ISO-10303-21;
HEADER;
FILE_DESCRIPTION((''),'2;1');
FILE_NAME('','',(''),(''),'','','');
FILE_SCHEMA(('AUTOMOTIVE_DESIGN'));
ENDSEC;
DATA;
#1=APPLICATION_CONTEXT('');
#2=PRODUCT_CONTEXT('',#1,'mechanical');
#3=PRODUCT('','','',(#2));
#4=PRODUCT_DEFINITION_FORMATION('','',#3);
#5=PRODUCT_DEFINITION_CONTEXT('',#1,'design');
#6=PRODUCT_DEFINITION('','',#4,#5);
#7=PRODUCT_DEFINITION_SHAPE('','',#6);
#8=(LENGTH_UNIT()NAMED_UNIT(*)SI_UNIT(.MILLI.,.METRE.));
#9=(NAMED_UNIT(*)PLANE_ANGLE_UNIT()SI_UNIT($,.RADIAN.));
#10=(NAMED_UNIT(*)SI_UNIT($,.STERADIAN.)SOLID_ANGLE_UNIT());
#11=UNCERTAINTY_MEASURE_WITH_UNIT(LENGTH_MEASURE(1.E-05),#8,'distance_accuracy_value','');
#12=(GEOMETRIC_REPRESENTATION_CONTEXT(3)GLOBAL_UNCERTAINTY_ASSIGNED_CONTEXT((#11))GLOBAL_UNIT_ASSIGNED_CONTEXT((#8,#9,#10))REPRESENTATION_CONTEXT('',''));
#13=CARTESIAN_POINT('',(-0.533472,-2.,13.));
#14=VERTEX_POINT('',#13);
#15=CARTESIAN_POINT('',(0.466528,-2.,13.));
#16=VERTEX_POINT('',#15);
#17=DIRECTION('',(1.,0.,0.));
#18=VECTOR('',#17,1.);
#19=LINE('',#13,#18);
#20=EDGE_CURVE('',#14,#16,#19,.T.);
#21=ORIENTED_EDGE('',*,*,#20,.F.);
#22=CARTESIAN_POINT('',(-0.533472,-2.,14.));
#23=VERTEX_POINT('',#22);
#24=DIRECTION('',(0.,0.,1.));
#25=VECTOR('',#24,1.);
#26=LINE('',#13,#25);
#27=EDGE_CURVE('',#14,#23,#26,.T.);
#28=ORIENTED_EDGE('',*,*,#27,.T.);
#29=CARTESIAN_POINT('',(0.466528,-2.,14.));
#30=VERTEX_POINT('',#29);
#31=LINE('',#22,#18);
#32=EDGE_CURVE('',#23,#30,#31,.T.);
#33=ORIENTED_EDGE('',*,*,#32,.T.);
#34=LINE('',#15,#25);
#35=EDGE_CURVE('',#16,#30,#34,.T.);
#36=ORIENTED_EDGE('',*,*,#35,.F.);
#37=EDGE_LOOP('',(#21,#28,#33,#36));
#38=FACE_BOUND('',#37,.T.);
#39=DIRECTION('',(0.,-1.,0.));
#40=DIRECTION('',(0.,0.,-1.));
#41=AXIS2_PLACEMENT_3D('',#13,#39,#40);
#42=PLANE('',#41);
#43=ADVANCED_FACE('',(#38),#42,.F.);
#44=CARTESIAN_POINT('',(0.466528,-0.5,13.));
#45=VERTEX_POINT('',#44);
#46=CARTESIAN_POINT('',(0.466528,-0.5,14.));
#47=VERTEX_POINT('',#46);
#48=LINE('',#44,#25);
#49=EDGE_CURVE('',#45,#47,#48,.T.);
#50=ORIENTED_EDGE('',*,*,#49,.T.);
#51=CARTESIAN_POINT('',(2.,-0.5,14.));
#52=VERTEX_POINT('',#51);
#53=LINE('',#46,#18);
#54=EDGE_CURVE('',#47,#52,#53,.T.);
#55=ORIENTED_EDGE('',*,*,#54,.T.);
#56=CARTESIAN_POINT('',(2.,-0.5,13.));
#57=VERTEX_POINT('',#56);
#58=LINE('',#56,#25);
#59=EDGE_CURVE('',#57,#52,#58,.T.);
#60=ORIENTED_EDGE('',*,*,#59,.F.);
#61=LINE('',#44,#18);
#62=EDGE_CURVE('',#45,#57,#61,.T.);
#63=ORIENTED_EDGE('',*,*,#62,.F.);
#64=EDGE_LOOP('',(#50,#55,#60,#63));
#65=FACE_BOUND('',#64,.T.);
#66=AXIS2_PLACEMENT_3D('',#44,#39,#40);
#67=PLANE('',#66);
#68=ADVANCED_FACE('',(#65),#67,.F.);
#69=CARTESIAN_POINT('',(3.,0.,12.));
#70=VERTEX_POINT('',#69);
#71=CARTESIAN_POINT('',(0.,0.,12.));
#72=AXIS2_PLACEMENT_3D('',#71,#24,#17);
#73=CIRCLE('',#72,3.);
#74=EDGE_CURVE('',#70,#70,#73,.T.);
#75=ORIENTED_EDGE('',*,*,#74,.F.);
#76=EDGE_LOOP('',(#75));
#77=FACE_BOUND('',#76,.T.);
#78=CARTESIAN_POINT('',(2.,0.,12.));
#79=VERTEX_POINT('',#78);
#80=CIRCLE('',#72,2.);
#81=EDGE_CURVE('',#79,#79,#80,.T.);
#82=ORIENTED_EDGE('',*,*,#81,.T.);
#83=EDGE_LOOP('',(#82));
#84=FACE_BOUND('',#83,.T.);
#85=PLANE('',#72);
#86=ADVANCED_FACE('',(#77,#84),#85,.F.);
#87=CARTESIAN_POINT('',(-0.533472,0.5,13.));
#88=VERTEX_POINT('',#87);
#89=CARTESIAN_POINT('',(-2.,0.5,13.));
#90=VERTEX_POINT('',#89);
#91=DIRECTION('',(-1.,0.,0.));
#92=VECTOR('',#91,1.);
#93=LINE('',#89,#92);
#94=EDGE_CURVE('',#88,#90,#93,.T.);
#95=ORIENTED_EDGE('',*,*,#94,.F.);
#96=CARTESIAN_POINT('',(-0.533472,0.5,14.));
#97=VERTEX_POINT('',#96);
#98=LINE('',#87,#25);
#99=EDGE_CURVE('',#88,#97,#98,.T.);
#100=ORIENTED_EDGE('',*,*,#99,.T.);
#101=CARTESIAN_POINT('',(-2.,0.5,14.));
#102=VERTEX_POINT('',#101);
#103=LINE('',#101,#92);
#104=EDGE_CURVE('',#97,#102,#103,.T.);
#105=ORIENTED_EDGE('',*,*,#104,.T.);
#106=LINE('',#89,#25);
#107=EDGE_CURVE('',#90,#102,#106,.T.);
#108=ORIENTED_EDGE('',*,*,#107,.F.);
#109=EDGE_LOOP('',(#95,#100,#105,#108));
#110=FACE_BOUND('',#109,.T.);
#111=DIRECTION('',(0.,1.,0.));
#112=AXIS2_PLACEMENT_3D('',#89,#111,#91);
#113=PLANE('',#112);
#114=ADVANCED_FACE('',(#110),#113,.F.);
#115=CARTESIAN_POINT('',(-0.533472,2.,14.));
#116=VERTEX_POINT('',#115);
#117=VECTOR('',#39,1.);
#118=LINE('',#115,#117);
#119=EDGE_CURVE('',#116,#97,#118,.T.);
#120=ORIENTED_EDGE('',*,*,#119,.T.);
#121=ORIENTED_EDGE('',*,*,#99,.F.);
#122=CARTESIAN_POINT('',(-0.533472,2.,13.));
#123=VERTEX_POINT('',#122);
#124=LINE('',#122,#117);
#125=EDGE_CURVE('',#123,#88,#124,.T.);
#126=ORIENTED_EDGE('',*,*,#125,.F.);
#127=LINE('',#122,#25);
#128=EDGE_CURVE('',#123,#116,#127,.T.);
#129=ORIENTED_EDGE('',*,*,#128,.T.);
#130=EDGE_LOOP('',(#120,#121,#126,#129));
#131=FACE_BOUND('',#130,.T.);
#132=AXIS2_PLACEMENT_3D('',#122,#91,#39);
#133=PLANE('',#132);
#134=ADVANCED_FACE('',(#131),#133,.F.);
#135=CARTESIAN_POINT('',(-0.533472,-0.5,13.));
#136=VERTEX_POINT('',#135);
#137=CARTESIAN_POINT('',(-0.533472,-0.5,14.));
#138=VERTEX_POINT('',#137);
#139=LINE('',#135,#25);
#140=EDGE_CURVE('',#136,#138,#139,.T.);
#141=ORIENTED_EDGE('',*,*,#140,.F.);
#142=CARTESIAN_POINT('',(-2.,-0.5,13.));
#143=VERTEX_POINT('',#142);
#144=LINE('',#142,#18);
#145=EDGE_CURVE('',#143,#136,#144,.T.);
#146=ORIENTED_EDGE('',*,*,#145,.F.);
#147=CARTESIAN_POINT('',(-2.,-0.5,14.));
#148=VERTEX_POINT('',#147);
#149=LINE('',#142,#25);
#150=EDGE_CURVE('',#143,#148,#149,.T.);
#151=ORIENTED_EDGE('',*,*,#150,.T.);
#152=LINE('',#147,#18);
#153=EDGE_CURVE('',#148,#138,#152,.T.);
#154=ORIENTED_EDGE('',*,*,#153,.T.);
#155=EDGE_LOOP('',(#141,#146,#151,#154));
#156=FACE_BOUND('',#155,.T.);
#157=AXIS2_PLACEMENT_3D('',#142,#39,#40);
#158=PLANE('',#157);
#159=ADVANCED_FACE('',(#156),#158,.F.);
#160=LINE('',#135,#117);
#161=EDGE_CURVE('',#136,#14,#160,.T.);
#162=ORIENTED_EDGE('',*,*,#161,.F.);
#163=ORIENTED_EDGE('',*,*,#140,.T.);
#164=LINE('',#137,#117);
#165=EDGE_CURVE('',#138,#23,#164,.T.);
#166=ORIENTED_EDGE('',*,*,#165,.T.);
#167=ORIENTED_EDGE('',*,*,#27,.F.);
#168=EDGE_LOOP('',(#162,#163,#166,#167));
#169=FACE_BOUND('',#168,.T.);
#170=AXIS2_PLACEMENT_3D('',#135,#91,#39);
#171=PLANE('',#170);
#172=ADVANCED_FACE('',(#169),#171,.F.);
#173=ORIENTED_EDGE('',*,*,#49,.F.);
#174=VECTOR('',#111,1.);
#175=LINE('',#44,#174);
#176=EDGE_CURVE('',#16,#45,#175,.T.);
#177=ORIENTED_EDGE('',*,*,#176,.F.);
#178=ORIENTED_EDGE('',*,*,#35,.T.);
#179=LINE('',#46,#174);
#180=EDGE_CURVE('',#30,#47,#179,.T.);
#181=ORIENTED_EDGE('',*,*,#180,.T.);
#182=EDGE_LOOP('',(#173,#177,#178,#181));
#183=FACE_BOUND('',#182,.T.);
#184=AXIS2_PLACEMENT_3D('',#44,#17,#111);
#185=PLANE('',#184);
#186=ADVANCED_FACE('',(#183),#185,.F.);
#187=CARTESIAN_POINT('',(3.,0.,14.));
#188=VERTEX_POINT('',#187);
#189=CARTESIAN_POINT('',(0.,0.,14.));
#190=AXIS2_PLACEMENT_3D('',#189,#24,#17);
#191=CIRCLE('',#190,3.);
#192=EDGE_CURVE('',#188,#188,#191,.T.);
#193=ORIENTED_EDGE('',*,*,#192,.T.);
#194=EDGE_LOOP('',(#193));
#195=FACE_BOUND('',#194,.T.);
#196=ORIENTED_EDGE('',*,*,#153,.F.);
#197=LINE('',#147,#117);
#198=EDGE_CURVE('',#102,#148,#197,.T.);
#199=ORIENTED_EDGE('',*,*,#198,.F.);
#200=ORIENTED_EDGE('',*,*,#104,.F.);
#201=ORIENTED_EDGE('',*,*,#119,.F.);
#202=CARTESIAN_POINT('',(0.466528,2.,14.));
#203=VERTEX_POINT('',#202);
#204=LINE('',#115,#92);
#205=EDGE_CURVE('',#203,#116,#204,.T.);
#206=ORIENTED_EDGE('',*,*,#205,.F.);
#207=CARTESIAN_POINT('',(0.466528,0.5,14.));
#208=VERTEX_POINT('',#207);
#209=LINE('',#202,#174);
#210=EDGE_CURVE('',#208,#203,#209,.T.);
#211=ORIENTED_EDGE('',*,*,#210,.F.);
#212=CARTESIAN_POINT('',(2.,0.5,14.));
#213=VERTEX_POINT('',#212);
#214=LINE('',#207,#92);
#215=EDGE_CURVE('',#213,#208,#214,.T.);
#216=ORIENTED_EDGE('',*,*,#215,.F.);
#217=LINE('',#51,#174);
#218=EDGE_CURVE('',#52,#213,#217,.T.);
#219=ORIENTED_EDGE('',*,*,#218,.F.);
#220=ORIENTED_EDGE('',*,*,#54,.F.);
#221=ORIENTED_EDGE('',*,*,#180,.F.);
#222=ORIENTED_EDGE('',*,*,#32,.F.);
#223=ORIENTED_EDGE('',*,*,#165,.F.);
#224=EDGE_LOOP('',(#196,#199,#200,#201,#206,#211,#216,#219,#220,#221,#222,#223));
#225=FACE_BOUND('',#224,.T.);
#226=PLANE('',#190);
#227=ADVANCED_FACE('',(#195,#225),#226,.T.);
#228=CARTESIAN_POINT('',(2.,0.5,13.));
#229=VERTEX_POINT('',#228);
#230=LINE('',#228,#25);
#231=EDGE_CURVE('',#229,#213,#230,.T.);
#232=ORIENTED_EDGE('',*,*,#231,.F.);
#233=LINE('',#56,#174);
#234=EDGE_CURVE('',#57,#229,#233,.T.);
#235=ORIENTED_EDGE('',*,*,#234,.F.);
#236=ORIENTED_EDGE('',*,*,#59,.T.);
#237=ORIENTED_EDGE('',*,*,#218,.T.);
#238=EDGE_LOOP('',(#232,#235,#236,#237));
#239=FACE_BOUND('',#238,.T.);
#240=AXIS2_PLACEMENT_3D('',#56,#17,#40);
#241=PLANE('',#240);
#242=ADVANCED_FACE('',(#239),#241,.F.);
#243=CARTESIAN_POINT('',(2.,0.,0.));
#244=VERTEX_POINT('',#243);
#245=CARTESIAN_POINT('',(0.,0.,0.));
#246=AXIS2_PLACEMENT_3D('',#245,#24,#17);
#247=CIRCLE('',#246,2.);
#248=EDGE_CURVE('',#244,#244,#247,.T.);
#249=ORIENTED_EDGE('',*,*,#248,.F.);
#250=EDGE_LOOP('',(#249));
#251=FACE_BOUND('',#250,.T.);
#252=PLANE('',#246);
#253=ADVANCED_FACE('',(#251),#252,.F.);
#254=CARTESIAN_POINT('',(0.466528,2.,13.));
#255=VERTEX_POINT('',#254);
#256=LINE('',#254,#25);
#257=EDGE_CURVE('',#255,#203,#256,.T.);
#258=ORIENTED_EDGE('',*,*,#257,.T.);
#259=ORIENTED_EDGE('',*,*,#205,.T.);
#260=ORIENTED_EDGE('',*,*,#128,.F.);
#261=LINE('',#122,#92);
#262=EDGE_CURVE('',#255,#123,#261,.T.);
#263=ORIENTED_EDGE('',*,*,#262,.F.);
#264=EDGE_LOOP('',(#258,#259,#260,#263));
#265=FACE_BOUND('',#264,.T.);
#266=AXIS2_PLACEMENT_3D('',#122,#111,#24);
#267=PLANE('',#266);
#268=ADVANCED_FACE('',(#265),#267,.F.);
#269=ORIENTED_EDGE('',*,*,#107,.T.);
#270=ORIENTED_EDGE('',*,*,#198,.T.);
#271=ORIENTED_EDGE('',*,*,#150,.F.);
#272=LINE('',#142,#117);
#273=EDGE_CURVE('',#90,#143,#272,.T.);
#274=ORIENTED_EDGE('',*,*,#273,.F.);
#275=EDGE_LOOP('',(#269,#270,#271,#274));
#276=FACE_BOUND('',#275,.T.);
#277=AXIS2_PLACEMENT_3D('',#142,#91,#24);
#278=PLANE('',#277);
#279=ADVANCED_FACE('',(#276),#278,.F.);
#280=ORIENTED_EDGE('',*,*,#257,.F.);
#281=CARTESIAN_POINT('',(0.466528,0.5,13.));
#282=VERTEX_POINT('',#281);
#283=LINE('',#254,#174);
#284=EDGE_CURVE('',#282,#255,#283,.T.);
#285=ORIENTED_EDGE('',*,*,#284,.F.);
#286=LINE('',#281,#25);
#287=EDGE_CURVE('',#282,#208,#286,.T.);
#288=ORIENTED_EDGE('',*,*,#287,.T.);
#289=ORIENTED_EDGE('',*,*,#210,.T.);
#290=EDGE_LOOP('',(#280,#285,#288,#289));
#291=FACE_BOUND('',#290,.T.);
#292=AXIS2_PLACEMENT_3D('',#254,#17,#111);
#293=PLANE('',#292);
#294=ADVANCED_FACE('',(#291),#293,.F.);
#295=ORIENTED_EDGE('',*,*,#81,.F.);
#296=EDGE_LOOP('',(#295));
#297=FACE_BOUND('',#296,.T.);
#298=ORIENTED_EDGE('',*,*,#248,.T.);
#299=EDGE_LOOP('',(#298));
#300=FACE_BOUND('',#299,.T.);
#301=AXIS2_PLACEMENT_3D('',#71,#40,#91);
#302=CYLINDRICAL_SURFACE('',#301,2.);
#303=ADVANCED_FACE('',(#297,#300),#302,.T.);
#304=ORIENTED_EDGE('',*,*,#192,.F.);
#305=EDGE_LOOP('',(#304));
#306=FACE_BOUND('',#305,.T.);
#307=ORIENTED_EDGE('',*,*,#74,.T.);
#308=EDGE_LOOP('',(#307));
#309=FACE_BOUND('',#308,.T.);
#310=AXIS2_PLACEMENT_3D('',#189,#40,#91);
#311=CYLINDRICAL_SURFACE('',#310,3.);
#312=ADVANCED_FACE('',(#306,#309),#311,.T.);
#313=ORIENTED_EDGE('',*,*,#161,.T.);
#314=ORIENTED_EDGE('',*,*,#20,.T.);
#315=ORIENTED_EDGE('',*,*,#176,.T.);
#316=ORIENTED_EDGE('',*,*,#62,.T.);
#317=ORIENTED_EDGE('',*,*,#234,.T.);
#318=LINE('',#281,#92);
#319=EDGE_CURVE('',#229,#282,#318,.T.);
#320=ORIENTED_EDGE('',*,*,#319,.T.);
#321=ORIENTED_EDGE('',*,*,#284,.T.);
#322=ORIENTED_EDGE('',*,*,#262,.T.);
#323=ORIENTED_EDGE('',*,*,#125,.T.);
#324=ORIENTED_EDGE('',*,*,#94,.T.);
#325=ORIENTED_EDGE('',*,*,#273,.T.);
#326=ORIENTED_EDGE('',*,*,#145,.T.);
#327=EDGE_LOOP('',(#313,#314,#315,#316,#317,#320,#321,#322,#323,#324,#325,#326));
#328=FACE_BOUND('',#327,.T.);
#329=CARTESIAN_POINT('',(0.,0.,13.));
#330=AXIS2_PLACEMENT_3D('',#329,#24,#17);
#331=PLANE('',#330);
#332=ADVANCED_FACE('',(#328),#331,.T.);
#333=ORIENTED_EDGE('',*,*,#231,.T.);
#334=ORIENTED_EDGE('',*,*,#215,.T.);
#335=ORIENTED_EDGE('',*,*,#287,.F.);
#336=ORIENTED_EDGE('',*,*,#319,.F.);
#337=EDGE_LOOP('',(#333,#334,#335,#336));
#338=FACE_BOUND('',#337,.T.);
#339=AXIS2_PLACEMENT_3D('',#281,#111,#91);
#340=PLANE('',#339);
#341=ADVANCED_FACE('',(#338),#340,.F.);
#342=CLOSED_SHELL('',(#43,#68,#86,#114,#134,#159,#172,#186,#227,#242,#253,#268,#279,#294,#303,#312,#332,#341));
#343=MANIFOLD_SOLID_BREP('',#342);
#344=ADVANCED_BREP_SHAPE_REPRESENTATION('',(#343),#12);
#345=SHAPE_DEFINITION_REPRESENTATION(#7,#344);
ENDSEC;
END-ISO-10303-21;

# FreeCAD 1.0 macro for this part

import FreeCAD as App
import Part
import Sketcher


def add_polygon(sketch, points):
    """Adds a closed chain of lines whose ends are joined by coincident constraints."""
    first, n = sketch.GeometryCount, len(points)
    for a, b in zip(points, points[1:] + points[:1]):
        sketch.addGeometry(Part.LineSegment(App.Vector(*a, 0), App.Vector(*b, 0)), False)
    for i in range(n):
        sketch.addConstraint(Sketcher.Constraint("Coincident", first + i, 2, first + (i + 1) % n, 1))

doc = App.newDocument("Part")
body = doc.addObject("PartDesign::Body", "Body")

sketch1 = body.newObject("Sketcher::SketchObject", "Sketch")
sketch1.AttachmentSupport = (doc.getObject("XY_Plane"), [""])
sketch1.MapMode = "FlatFace"
sketch1.addGeometry(Part.Circle(App.Vector(0, 0, 0), App.Vector(0, 0, 1), 2), False)
sketch1.addConstraint([
    Sketcher.Constraint("Coincident", 0, 3, -1, 1),
    Sketcher.Constraint("Diameter", 0, 4.0),
])
pad1 = body.newObject("PartDesign::Pad", "Pad")
pad1.Profile = sketch1
pad1.Length = 12

sketch2 = body.newObject("Sketcher::SketchObject", "Sketch001")
sketch2.AttachmentSupport = (doc.getObject("XY_Plane"), [""])
sketch2.MapMode = "FlatFace"
sketch2.AttachmentOffset = App.Placement(App.Vector(0, 0, 12), App.Rotation())
sketch2.addGeometry(Part.Circle(App.Vector(0, 0, 0), App.Vector(0, 0, 1), 3), False)
sketch2.addConstraint([
    Sketcher.Constraint("Coincident", 0, 3, -1, 1),
    Sketcher.Constraint("Diameter", 0, 6.0),
])
pad2 = body.newObject("PartDesign::Pad", "Pad001")
pad2.Profile = sketch2
pad2.Length = 2

sketch3 = body.newObject("Sketcher::SketchObject", "Sketch002")
sketch3.AttachmentSupport = (doc.getObject("XY_Plane"), [""])
sketch3.MapMode = "FlatFace"
sketch3.AttachmentOffset = App.Placement(App.Vector(0, 0, 14), App.Rotation())
add_polygon(sketch3, [(2, 0.5), (0.466528, 0.5), (0.466528, 2), (-0.533472, 2), (-0.533472, 0.5), (-2, 0.5), (-2, -0.5), (-0.533472, -0.5), (-0.533472, -2), (0.466528, -2), (0.466528, -0.5), (2, -0.5)])
sketch3.addConstraint([
    Sketcher.Constraint("Horizontal", 0),
    Sketcher.Constraint("Vertical", 1),
    Sketcher.Constraint("Horizontal", 2),
    Sketcher.Constraint("Vertical", 3),
    Sketcher.Constraint("Horizontal", 4),
    Sketcher.Constraint("Vertical", 5),
    Sketcher.Constraint("Horizontal", 6),
    Sketcher.Constraint("Vertical", 7),
    Sketcher.Constraint("Horizontal", 8),
    Sketcher.Constraint("Vertical", 9),
    Sketcher.Constraint("Horizontal", 10),
    Sketcher.Constraint("Vertical", 11),
    Sketcher.Constraint("Symmetric", 4, 2, 10, 2, -1, 1),
    Sketcher.Constraint("Symmetric", 3, 2, 6, 2, -1),
    Sketcher.Constraint("Symmetric", 1, 2, 8, 2, -1),
    Sketcher.Constraint("Horizontal", 0, 2, 3, 2),
    Sketcher.Constraint("Equal", 8, 5),
    Sketcher.Constraint("DistanceX", 2, 2, 2, 1, 1.0),
    Sketcher.Constraint("DistanceY", 1, 1, 1, 2, 1.5),
    Sketcher.Constraint("DistanceX", 4, 2, -1, 1, 2.0),
    Sketcher.Constraint("DistanceX", 0, 2, 0, 1, 1.533472),
])
pocket1 = body.newObject("PartDesign::Pocket", "Pocket")
pocket1.Profile = sketch3
pocket1.Length = 1

doc.recompute()
